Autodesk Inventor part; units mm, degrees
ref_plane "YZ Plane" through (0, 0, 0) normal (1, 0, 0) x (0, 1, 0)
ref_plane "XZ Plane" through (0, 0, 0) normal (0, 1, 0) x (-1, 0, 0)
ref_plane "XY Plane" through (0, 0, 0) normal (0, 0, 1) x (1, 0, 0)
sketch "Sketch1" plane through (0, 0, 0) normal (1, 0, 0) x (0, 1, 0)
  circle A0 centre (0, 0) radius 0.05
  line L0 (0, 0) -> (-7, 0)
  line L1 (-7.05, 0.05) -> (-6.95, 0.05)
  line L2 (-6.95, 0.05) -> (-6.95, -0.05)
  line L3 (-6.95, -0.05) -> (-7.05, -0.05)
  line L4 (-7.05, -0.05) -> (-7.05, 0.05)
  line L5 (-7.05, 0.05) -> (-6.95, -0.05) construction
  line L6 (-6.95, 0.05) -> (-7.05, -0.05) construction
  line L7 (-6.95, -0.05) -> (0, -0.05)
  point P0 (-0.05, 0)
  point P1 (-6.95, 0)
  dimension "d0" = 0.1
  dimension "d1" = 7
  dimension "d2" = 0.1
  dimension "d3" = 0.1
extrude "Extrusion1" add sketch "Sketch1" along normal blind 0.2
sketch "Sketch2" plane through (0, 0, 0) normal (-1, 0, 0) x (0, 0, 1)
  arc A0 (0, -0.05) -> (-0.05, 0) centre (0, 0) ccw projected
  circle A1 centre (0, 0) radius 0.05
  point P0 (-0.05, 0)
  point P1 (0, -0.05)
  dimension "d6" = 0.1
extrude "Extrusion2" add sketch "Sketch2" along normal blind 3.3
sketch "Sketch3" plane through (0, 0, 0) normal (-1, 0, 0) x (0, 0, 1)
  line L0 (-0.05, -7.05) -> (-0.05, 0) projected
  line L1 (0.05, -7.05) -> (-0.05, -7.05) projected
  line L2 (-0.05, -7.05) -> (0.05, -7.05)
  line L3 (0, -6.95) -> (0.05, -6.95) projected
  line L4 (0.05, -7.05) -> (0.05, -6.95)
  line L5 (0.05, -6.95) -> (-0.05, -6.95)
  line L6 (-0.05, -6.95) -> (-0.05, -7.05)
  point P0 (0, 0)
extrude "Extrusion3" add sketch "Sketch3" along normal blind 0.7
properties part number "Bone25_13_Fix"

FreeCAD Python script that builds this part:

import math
import FreeCAD as App
import Part
import Sketcher
Q = App.Units.Quantity

doc = App.newDocument("Part")
body = doc.addObject("PartDesign::Body", "Body")

# Sketch on YZ plane
sketch1 = body.newObject("Sketcher::SketchObject", "Sketch")
sketch1.AttachmentSupport = (doc.getObject("YZ_Plane"), [""])
sketch1.MapMode = "FlatFace"
sketch1.addGeometry([
    Part.LineSegment(App.Vector(-0.05, 0, 0), App.Vector(-6.95, 0, 0)),  # 0
    Part.LineSegment(App.Vector(-6.95, 0, 0), App.Vector(-6.95, 0.05, 0)),  # 1
    Part.LineSegment(App.Vector(-6.95, 0.05, 0), App.Vector(-7.05, 0.05, 0)),  # 2
    Part.LineSegment(App.Vector(-7.05, 0.05, 0), App.Vector(-7.05, -0.05, 0)),  # 3
    Part.LineSegment(App.Vector(-7.05, -0.05, 0), App.Vector(0, -0.05, 0)),  # 4
    Part.ArcOfCircle(Part.Circle(App.Vector(0, 0, 0), App.Vector(0, 0, 1), 0.05), math.radians(-90), math.radians(180)),  # 5
], False)
sketch1.addConstraint([
    Sketcher.Constraint("Coincident", 0, 2, 1, 1),
    Sketcher.Constraint("Coincident", 1, 2, 2, 1),
    Sketcher.Constraint("Coincident", 2, 2, 3, 1),
    Sketcher.Constraint("Coincident", 3, 2, 4, 1),
    Sketcher.Constraint("Tangent", 4, 2, 5, 1),
    Sketcher.Constraint("Coincident", 5, 2, 0, 1),
    Sketcher.Constraint("Horizontal", 0),
    Sketcher.Constraint("Vertical", 1),
    Sketcher.Constraint("Horizontal", 2),
    Sketcher.Constraint("Vertical", 3),
    Sketcher.Constraint("Horizontal", 4),
    Sketcher.Constraint("Coincident", 5, 3, -1, 1),
    Sketcher.Constraint("PointOnObject", 0, 2, -1),
    Sketcher.Constraint("Equal", 2, 3),
    Sketcher.Constraint("Radius", 5, Q("0.05 mm")),
    Sketcher.Constraint("DistanceX", 2, 2, 2, 1, Q("0.1 mm")),
    Sketcher.Constraint("DistanceX", 2, 2, 5, 2, Q("7 mm")),
])
pad1 = body.newObject("PartDesign::Pad", "Pad")
pad1.Profile = sketch1
pad1.Length = 0.2

# Sketch on YZ plane
sketch2 = body.newObject("Sketcher::SketchObject", "Sketch001")
sketch2.AttachmentSupport = (doc.getObject("YZ_Plane"), [""])
sketch2.MapMode = "FlatFace"
sketch2.addGeometry(Part.Circle(App.Vector(0, 0, 0), App.Vector(0, 0, 1), 0.05), False)
sketch2.addConstraint([
    Sketcher.Constraint("Coincident", 0, 3, -1, 1),
    Sketcher.Constraint("Diameter", 0, Q("0.1 mm")),
])
pad2 = body.newObject("PartDesign::Pad", "Pad001")
pad2.Profile = sketch2
pad2.Length = 3.3
pad2.Reversed = True

# Sketch on YZ plane
sketch3 = body.newObject("Sketcher::SketchObject", "Sketch002")
sketch3.AttachmentSupport = (doc.getObject("YZ_Plane"), [""])
sketch3.MapMode = "FlatFace"
sketch3.addGeometry([
    Part.LineSegment(App.Vector(-6.95, -0.05, 0), App.Vector(-7.05, -0.05, 0)),
    Part.LineSegment(App.Vector(-7.05, -0.05, 0), App.Vector(-7.05, 0.05, 0)),
    Part.LineSegment(App.Vector(-7.05, 0.05, 0), App.Vector(-6.95, 0.05, 0)),
    Part.LineSegment(App.Vector(-6.95, 0.05, 0), App.Vector(-6.95, -0.05, 0)),
], False)
sketch3.addConstraint([
    Sketcher.Constraint("Coincident", 0, 2, 1, 1),
    Sketcher.Constraint("Coincident", 1, 2, 2, 1),
    Sketcher.Constraint("Coincident", 2, 2, 3, 1),
    Sketcher.Constraint("Coincident", 3, 2, 0, 1),
    Sketcher.Constraint("Horizontal", 0),
    Sketcher.Constraint("Vertical", 1),
    Sketcher.Constraint("Horizontal", 2),
    Sketcher.Constraint("Vertical", 3),
    Sketcher.Constraint("Equal", 2, 1),
    Sketcher.Constraint("DistanceX", 0, 2, 0, 1, Q("0.1 mm")),
    Sketcher.Constraint("DistanceX", 0, 2, -1, 1, Q("7.05 mm")),
    Sketcher.Constraint("DistanceY", 0, 2, -1, 1, Q("0.05 mm")),
])
pad3 = body.newObject("PartDesign::Pad", "Pad002")
pad3.Profile = sketch3
pad3.Length = 0.7
pad3.Reversed = True

doc.recompute()
